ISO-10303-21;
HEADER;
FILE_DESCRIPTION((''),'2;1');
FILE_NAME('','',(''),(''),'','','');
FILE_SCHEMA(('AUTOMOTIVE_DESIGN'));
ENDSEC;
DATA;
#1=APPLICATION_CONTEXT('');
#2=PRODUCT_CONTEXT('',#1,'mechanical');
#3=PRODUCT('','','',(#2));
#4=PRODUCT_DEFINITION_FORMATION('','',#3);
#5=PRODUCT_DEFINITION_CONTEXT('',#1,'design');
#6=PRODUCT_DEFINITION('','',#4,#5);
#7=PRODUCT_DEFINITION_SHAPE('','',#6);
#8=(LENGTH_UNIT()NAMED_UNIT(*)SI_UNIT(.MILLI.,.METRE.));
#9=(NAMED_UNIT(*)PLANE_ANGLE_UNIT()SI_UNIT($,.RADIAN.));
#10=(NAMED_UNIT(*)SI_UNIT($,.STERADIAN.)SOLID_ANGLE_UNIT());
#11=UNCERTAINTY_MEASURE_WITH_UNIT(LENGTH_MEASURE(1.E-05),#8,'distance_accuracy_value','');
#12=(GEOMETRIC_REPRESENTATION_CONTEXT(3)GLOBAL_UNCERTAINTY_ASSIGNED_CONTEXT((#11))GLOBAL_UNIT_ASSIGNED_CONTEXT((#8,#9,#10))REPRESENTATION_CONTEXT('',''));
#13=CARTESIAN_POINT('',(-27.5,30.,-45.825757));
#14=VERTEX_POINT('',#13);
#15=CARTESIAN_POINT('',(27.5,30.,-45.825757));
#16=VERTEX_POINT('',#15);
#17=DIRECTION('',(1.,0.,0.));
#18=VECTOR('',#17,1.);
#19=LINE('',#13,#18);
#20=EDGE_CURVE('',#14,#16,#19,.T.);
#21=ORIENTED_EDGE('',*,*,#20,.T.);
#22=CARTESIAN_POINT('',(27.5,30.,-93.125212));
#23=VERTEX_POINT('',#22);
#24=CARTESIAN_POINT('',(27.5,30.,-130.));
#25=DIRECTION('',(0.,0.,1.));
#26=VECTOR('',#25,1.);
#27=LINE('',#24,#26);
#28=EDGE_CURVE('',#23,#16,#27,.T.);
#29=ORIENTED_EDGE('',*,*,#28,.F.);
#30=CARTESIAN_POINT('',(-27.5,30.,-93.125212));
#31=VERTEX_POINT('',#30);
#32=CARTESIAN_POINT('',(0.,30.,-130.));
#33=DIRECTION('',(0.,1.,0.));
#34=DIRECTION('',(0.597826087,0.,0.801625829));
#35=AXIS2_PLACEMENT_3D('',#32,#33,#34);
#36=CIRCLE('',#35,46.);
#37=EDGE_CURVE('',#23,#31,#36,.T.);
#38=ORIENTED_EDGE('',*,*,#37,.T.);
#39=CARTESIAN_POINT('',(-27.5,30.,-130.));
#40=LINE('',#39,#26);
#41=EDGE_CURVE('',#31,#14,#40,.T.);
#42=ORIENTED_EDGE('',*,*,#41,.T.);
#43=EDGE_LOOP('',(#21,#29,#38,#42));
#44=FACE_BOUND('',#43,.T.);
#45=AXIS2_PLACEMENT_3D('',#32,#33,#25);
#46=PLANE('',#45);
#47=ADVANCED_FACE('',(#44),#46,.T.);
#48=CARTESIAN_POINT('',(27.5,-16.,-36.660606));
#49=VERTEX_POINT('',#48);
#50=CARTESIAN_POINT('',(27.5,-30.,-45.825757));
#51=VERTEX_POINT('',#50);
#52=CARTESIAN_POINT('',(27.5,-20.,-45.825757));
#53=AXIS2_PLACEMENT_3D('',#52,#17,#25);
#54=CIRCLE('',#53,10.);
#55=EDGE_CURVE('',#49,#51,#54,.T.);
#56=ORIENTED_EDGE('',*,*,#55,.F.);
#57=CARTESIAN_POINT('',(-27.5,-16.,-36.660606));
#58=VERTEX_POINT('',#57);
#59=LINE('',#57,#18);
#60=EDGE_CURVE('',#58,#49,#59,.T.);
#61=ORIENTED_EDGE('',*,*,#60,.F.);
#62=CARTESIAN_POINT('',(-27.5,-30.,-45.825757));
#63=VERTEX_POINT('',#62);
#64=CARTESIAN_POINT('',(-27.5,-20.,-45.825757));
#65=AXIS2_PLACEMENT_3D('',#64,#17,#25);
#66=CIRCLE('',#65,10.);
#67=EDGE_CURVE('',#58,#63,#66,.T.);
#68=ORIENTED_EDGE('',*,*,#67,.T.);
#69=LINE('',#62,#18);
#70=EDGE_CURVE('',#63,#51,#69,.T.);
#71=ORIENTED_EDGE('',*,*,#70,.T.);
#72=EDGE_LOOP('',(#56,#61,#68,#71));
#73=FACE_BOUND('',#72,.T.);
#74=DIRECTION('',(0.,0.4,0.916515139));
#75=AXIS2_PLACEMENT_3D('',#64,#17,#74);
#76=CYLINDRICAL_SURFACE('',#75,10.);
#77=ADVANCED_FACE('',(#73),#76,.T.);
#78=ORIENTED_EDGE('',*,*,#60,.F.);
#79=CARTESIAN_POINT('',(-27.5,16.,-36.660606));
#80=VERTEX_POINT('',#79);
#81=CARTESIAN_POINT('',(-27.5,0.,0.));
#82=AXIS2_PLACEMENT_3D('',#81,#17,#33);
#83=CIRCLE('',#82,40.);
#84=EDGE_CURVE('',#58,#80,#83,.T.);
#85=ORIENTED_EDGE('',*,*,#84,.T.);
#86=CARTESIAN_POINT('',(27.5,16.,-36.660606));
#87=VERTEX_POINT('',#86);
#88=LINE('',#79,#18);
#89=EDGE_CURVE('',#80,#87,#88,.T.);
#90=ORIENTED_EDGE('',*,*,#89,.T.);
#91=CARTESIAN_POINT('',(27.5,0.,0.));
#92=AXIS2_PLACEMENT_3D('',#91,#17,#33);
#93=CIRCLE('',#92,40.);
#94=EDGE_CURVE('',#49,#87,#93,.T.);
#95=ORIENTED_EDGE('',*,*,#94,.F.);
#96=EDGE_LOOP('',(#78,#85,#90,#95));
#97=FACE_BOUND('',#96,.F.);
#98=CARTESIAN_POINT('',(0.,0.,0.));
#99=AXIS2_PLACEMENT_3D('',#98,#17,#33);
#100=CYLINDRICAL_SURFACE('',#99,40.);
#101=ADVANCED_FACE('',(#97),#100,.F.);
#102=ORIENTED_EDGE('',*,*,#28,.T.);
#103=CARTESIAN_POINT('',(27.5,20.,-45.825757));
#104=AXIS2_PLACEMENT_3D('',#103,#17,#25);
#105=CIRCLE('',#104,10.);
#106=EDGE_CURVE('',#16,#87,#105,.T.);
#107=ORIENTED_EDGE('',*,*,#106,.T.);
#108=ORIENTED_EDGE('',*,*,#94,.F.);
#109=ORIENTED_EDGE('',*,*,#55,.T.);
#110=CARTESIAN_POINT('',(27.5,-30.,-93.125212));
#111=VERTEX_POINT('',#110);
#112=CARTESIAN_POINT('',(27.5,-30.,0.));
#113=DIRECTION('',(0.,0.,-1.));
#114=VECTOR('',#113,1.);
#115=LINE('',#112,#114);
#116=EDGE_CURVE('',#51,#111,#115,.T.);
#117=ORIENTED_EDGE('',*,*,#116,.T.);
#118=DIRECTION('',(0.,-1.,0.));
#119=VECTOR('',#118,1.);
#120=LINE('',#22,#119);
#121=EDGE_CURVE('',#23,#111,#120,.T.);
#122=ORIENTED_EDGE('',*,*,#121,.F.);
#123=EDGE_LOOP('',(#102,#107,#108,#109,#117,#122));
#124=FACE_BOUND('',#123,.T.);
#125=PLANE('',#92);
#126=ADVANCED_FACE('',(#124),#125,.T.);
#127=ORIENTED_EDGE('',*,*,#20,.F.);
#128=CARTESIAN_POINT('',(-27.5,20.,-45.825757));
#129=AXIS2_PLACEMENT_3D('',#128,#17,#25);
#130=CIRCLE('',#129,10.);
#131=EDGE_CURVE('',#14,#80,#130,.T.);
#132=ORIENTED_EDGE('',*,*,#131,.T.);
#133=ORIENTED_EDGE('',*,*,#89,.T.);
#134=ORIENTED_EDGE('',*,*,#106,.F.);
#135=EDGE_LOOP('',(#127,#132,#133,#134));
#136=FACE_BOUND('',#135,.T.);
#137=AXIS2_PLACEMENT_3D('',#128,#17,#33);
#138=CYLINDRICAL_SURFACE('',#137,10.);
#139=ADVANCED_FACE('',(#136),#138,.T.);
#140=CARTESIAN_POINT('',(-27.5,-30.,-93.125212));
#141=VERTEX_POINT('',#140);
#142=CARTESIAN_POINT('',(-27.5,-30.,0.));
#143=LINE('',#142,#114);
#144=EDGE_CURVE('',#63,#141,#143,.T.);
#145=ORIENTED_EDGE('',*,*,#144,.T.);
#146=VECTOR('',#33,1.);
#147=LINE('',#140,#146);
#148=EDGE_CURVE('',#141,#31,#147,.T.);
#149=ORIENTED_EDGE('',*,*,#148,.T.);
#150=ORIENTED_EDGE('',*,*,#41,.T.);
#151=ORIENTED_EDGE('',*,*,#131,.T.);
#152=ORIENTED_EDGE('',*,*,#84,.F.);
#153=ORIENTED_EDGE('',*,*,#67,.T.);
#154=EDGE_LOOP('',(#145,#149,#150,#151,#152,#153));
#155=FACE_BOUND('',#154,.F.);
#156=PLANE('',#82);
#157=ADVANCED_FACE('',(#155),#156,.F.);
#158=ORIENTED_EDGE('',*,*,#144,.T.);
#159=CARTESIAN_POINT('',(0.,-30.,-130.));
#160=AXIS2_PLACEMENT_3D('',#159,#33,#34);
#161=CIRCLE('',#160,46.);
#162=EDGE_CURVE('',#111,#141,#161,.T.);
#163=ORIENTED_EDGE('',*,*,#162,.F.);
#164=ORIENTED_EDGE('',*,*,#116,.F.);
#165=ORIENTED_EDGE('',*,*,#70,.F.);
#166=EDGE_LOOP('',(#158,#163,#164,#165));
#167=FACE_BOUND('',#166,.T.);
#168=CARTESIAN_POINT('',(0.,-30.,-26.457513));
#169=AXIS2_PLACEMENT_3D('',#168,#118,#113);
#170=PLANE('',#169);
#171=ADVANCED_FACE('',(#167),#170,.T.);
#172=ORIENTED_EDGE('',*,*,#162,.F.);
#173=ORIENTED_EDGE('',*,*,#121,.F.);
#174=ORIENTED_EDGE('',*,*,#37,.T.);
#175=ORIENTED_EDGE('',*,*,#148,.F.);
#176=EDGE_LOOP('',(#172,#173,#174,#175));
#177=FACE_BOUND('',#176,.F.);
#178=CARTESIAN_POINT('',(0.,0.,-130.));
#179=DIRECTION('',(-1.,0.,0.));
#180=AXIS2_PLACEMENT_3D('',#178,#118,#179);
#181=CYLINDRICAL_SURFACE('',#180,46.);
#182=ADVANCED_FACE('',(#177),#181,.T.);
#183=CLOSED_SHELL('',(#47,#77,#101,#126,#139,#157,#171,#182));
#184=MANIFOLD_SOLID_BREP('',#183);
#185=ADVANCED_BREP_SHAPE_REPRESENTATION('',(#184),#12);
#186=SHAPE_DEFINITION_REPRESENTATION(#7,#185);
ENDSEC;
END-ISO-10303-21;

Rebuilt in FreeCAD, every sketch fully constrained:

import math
import FreeCAD as App
import Part
import Sketcher
from FreeCAD import Vector
Q = App.Units.Quantity


def edges_at(feature, points):
    """Names of the edges that pass closest to the given points."""
    edges = feature.Shape.Edges
    near = lambda p: min(range(len(edges)), key=lambda i: edges[i].distToShape(Part.Vertex(*p))[0])
    return sorted({f"Edge{near(p) + 1}" for p in points})

doc = App.newDocument("Part")
body = doc.addObject("PartDesign::Body", "Body")

# Sketch on YZ plane
sketch1 = body.newObject("Sketcher::SketchObject", "Sketch")
sketch1.AttachmentSupport = (doc.getObject("YZ_Plane"), [""])
sketch1.MapMode = "FlatFace"
sketch1.addGeometry([
    Part.LineSegment(Vector(30, -130, 0), Vector(30, -26, 0)),
    Part.ArcOfCircle(Part.Circle(Vector(0, 0, 0), Vector(0, 0, 1), 40), math.radians(-139), math.radians(-41)),
    Part.LineSegment(Vector(-30, -26, 0), Vector(-30, -130, 0)),
    Part.LineSegment(Vector(-30, -130, 0), Vector(30, -130, 0)),
], False)
sketch1.addConstraint([
    Sketcher.Constraint("Coincident", 0, 2, 1, 2),
    Sketcher.Constraint("Coincident", 1, 1, 2, 1),
    Sketcher.Constraint("Coincident", 2, 2, 3, 1),
    Sketcher.Constraint("Coincident", 3, 2, 0, 1),
    Sketcher.Constraint("Vertical", 0),
    Sketcher.Constraint("Vertical", 2),
    Sketcher.Constraint("Horizontal", 3),
    Sketcher.Constraint("Coincident", 1, 3, -1, 1),
    Sketcher.Constraint("Horizontal", 0, 2, 1, 1),
    Sketcher.Constraint("Radius", 1, Q("40 mm")),
    Sketcher.Constraint("DistanceX", 3, 1, 3, 2, Q("60 mm")),
    Sketcher.Constraint("DistanceY", 2, 2, -1, 1, Q("130 mm")),
])
pad1 = body.newObject("PartDesign::Pad", "Pad")
pad1.Profile = sketch1
pad1.Length = 55
pad1.Midplane = True

# Sketch on XZ plane
sketch2 = body.newObject("Sketcher::SketchObject", "Sketch001")
sketch2.AttachmentSupport = (doc.getObject("XZ_Plane"), [""])
sketch2.MapMode = "FlatFace"
sketch2.addGeometry(Part.Circle(Vector(0, -130, 0), Vector(0, 0, 1), 46), False)
sketch2.addConstraint([
    Sketcher.Constraint("PointOnObject", 0, 3, -2),
    Sketcher.Constraint("Diameter", 0, Q("92 mm")),
    Sketcher.Constraint("DistanceY", 0, 3, -1, 1, Q("130 mm")),
])
pad2 = body.newObject("PartDesign::Pad", "Pad001")
pad2.Profile = sketch2
pad2.Length = 60
pad2.Midplane = True
doc.recompute()

fillet = body.newObject("PartDesign::Fillet", "Fillet")
fillet.Base = (pad2, edges_at(pad2, [(0, 30, -26.457), (0, -30, -26.457)]))
fillet.Radius = 10

doc.recompute()
